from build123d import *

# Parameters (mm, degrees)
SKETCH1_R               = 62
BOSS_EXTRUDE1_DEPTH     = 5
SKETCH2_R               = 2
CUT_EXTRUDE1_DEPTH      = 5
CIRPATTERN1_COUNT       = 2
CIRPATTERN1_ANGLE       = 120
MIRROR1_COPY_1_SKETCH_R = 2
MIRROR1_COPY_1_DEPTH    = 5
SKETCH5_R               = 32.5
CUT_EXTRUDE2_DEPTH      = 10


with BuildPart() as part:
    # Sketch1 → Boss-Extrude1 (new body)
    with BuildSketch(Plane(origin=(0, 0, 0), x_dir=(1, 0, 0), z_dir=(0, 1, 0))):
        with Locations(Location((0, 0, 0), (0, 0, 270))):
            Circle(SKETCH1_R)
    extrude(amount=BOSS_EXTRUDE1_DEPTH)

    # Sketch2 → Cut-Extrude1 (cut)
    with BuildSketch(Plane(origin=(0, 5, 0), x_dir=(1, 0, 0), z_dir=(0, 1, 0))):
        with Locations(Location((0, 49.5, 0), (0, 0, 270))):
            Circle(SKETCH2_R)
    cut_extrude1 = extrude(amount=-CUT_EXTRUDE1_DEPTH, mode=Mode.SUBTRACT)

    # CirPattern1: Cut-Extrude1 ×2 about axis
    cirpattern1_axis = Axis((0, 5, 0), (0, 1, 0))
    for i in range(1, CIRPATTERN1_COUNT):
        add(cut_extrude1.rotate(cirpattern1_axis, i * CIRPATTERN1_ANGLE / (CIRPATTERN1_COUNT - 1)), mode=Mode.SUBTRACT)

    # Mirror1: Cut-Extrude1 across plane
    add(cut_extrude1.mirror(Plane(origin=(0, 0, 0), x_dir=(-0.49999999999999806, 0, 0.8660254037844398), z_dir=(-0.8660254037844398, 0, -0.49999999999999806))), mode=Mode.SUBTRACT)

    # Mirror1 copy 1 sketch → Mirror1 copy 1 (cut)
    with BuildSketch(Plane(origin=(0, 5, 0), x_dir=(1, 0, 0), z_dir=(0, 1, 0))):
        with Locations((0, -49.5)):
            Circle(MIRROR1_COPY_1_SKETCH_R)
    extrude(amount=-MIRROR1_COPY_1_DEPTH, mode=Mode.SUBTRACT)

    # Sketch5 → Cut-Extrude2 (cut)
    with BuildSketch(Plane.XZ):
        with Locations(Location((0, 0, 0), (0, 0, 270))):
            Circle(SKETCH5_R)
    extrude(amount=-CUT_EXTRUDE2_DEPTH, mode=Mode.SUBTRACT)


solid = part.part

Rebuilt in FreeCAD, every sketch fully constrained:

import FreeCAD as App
import Part
import Sketcher
Q = App.Units.Quantity

doc = App.newDocument("Part")
body = doc.addObject("PartDesign::Body", "Body")

# Sketch on XZ plane
sketch1 = body.newObject("Sketcher::SketchObject", "Sketch")
sketch1.AttachmentSupport = (doc.getObject("XZ_Plane"), [""])
sketch1.MapMode = "FlatFace"
sketch1.addGeometry(Part.Circle(App.Vector(0, 0, 0), App.Vector(0, 0, 1), 62), False)
sketch1.addConstraint(Sketcher.Constraint("Coincident", 0, 3, -1, 1))
sketch1.addConstraint(Sketcher.Constraint("Diameter", 0, Q("124 mm")))
pad1 = body.newObject("PartDesign::Pad", "Pad")
pad1.Profile = sketch1
pad1.Length = 5
pad1.Reversed = True

# Sketch on XZ plane
sketch2 = body.newObject("Sketcher::SketchObject", "Sketch001")
sketch2.AttachmentSupport = (doc.getObject("XZ_Plane"), [""])
sketch2.MapMode = "FlatFace"
sketch2.AttachmentOffset = App.Placement(App.Vector(0, 0, -5), App.Rotation())
sketch2.addGeometry(Part.Circle(App.Vector(0, -49.5, 0), App.Vector(0, 0, 1), 2), False)
sketch2.addConstraint(Sketcher.Constraint("PointOnObject", 0, 3, -2))
sketch2.addConstraint(Sketcher.Constraint("Diameter", 0, Q("4 mm")))
sketch2.addConstraint(Sketcher.Constraint("DistanceY", 0, 3, -1, 1, Q("49.5 mm")))
pocket1 = body.newObject("PartDesign::Pocket", "Pocket")
pocket1.Profile = sketch2
pocket1.Length = 5
pocket1.Reversed = True
doc.recompute()

polarpattern = body.newObject("PartDesign::PolarPattern", "PolarPattern")
polarpattern.Originals = [pocket1]
polarpattern.Axis = (doc.getObject("Y_Axis"), [""])
polarpattern.Angle = 120
polarpattern.Occurrences = 2
body.Tip = polarpattern
doc.recompute()

datumplane = body.newObject("PartDesign::Plane", "DatumPlane")
datumplane.Placement = App.Placement(App.Vector(0, 0, 0), App.Rotation(App.Vector(0.5, 0, -0.866025404), App.Vector(0, -1, 0), App.Vector(-0.866025404, 0, -0.5), "ZXY"))
mirrored = body.newObject("PartDesign::Mirrored", "Mirrored")
mirrored.Originals = [pocket1]
mirrored.MirrorPlane = (datumplane, [""])
body.Tip = mirrored

# Sketch on XZ plane
sketch3 = body.newObject("Sketcher::SketchObject", "Sketch002")
sketch3.AttachmentSupport = (doc.getObject("XZ_Plane"), [""])
sketch3.MapMode = "FlatFace"
sketch3.AttachmentOffset = App.Placement(App.Vector(0, 0, -5), App.Rotation())
sketch3.addGeometry(Part.Circle(App.Vector(0, 49.5, 0), App.Vector(0, 0, 1), 2), False)
sketch3.addConstraint(Sketcher.Constraint("PointOnObject", 0, 3, -2))
sketch3.addConstraint(Sketcher.Constraint("Diameter", 0, Q("4 mm")))
sketch3.addConstraint(Sketcher.Constraint("DistanceY", -1, 1, 0, 3, Q("49.5 mm")))
pocket2 = body.newObject("PartDesign::Pocket", "Pocket001")
pocket2.Profile = sketch3
pocket2.Length = 5
pocket2.Reversed = True

# Sketch on XZ plane
sketch4 = body.newObject("Sketcher::SketchObject", "Sketch003")
sketch4.AttachmentSupport = (doc.getObject("XZ_Plane"), [""])
sketch4.MapMode = "FlatFace"
sketch4.addGeometry(Part.Circle(App.Vector(0, 0, 0), App.Vector(0, 0, 1), 32.5), False)
sketch4.addConstraint(Sketcher.Constraint("Coincident", 0, 3, -1, 1))
sketch4.addConstraint(Sketcher.Constraint("Diameter", 0, Q("65 mm")))
pocket3 = body.newObject("PartDesign::Pocket", "Pocket002")
pocket3.Profile = sketch4
pocket3.Length = 10

doc.recompute()
